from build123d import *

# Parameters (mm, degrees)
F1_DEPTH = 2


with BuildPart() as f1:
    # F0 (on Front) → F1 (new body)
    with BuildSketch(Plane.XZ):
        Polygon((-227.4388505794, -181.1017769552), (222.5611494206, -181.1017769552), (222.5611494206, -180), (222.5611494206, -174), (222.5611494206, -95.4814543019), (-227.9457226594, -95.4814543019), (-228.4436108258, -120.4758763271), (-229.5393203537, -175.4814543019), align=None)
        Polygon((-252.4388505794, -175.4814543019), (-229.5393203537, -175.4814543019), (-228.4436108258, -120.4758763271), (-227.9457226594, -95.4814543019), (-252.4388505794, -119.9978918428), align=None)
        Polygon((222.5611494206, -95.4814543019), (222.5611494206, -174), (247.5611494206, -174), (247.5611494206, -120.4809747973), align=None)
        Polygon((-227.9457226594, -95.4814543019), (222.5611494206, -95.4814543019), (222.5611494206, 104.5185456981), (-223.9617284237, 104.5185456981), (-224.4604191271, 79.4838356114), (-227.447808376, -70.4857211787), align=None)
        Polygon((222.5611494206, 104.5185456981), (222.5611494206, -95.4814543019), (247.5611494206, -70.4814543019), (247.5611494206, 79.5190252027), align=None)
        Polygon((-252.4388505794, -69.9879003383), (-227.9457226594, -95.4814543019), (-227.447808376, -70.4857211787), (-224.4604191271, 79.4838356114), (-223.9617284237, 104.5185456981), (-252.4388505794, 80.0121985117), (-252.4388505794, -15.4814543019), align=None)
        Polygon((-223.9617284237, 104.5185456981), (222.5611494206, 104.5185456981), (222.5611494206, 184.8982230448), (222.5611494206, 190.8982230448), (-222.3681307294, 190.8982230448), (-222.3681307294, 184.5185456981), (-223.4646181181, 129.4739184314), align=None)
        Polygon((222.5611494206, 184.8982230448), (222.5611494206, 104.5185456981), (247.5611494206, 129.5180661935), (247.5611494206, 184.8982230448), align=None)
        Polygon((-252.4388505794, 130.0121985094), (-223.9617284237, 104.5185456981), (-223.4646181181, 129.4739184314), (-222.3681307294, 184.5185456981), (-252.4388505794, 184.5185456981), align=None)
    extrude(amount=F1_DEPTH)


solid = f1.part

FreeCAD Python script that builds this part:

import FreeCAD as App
import Part
import Sketcher
Q = App.Units.Quantity

doc = App.newDocument("Part")
body = doc.addObject("PartDesign::Body", "Body")

sketch1 = body.newObject("Sketcher::SketchObject", "Sketch")
sketch1.AttachmentSupport = (doc.getObject("XZ_Plane"), [""])
sketch1.MapMode = "FlatFace"
sketch1.addGeometry(Part.LineSegment(App.Vector(-227, -181, 0), App.Vector(223, -181, 0)), False)
sketch1.addGeometry(Part.LineSegment(App.Vector(223, -181, 0), App.Vector(223, -174, 0)), False)
sketch1.addGeometry(Part.LineSegment(App.Vector(223, -174, 0), App.Vector(248, -174, 0)), False)
sketch1.addGeometry(Part.LineSegment(App.Vector(248, -174, 0), App.Vector(248, -120, 0)), False)
sketch1.addGeometry(Part.LineSegment(App.Vector(248, -120, 0), App.Vector(223, -95, 0)), False)
sketch1.addGeometry(Part.LineSegment(App.Vector(223, -95, 0), App.Vector(248, -70, 0)), False)
sketch1.addGeometry(Part.LineSegment(App.Vector(248, -70, 0), App.Vector(248, 80, 0)), False)
sketch1.addGeometry(Part.LineSegment(App.Vector(248, 80, 0), App.Vector(223, 105, 0)), False)
sketch1.addGeometry(Part.LineSegment(App.Vector(223, 105, 0), App.Vector(248, 130, 0)), False)
sketch1.addGeometry(Part.LineSegment(App.Vector(248, 130, 0), App.Vector(248, 185, 0)), False)
sketch1.addGeometry(Part.LineSegment(App.Vector(248, 185, 0), App.Vector(223, 185, 0)), False)
sketch1.addGeometry(Part.LineSegment(App.Vector(223, 185, 0), App.Vector(223, 191, 0)), False)
sketch1.addGeometry(Part.LineSegment(App.Vector(223, 191, 0), App.Vector(-222, 191, 0)), False)
sketch1.addGeometry(Part.LineSegment(App.Vector(-222, 191, 0), App.Vector(-222, 185, 0)), False)
sketch1.addGeometry(Part.LineSegment(App.Vector(-222, 185, 0), App.Vector(-252, 185, 0)), False)
sketch1.addGeometry(Part.LineSegment(App.Vector(-252, 185, 0), App.Vector(-252, 130, 0)), False)
sketch1.addGeometry(Part.LineSegment(App.Vector(-252, 130, 0), App.Vector(-224, 105, 0)), False)
sketch1.addGeometry(Part.LineSegment(App.Vector(-224, 105, 0), App.Vector(-252, 80, 0)), False)
sketch1.addGeometry(Part.LineSegment(App.Vector(-252, 80, 0), App.Vector(-252, -70, 0)), False)
sketch1.addGeometry(Part.LineSegment(App.Vector(-252, -70, 0), App.Vector(-228, -95, 0)), False)
sketch1.addGeometry(Part.LineSegment(App.Vector(-228, -95, 0), App.Vector(-252, -120, 0)), False)
sketch1.addGeometry(Part.LineSegment(App.Vector(-252, -120, 0), App.Vector(-252, -175, 0)), False)
sketch1.addGeometry(Part.LineSegment(App.Vector(-252, -175, 0), App.Vector(-230, -175, 0)), False)
sketch1.addGeometry(Part.LineSegment(App.Vector(-230, -175, 0), App.Vector(-227, -181, 0)), False)
sketch1.addConstraint(Sketcher.Constraint("Coincident", 0, 2, 1, 1))
sketch1.addConstraint(Sketcher.Constraint("Coincident", 1, 2, 2, 1))
sketch1.addConstraint(Sketcher.Constraint("Coincident", 2, 2, 3, 1))
sketch1.addConstraint(Sketcher.Constraint("Coincident", 3, 2, 4, 1))
sketch1.addConstraint(Sketcher.Constraint("Coincident", 4, 2, 5, 1))
sketch1.addConstraint(Sketcher.Constraint("Coincident", 5, 2, 6, 1))
sketch1.addConstraint(Sketcher.Constraint("Coincident", 6, 2, 7, 1))
sketch1.addConstraint(Sketcher.Constraint("Coincident", 7, 2, 8, 1))
sketch1.addConstraint(Sketcher.Constraint("Coincident", 8, 2, 9, 1))
sketch1.addConstraint(Sketcher.Constraint("Coincident", 9, 2, 10, 1))
sketch1.addConstraint(Sketcher.Constraint("Coincident", 10, 2, 11, 1))
sketch1.addConstraint(Sketcher.Constraint("Coincident", 11, 2, 12, 1))
sketch1.addConstraint(Sketcher.Constraint("Coincident", 12, 2, 13, 1))
sketch1.addConstraint(Sketcher.Constraint("Coincident", 13, 2, 14, 1))
sketch1.addConstraint(Sketcher.Constraint("Coincident", 14, 2, 15, 1))
sketch1.addConstraint(Sketcher.Constraint("Coincident", 15, 2, 16, 1))
sketch1.addConstraint(Sketcher.Constraint("Coincident", 16, 2, 17, 1))
sketch1.addConstraint(Sketcher.Constraint("Coincident", 17, 2, 18, 1))
sketch1.addConstraint(Sketcher.Constraint("Coincident", 18, 2, 19, 1))
sketch1.addConstraint(Sketcher.Constraint("Coincident", 19, 2, 20, 1))
sketch1.addConstraint(Sketcher.Constraint("Coincident", 20, 2, 21, 1))
sketch1.addConstraint(Sketcher.Constraint("Coincident", 21, 2, 22, 1))
sketch1.addConstraint(Sketcher.Constraint("Coincident", 22, 2, 23, 1))
sketch1.addConstraint(Sketcher.Constraint("Coincident", 23, 2, 0, 1))
sketch1.addConstraint(Sketcher.Constraint("Horizontal", 0))
sketch1.addConstraint(Sketcher.Constraint("Vertical", 1))
sketch1.addConstraint(Sketcher.Constraint("Horizontal", 2))
sketch1.addConstraint(Sketcher.Constraint("Vertical", 3))
sketch1.addConstraint(Sketcher.Constraint("Vertical", 6))
sketch1.addConstraint(Sketcher.Constraint("Vertical", 9))
sketch1.addConstraint(Sketcher.Constraint("Horizontal", 10))
sketch1.addConstraint(Sketcher.Constraint("Vertical", 11))
sketch1.addConstraint(Sketcher.Constraint("Horizontal", 12))
sketch1.addConstraint(Sketcher.Constraint("Vertical", 13))
sketch1.addConstraint(Sketcher.Constraint("Horizontal", 14))
sketch1.addConstraint(Sketcher.Constraint("Vertical", 15))
sketch1.addConstraint(Sketcher.Constraint("Vertical", 18))
sketch1.addConstraint(Sketcher.Constraint("Vertical", 21))
sketch1.addConstraint(Sketcher.Constraint("Horizontal", 22))
sketch1.addConstraint(Sketcher.Constraint("Parallel", 4, 7))
sketch1.addConstraint(Sketcher.Constraint("Horizontal", 7, 2, 16, 2))
sketch1.addConstraint(Sketcher.Constraint("Horizontal", 4, 2, 19, 2))
sketch1.addConstraint(Sketcher.Constraint("Vertical", 1, 2, 4, 2))
sketch1.addConstraint(Sketcher.Constraint("Vertical", 3, 2, 5, 2))
sketch1.addConstraint(Sketcher.Constraint("Vertical", 4, 2, 7, 2))
sketch1.addConstraint(Sketcher.Constraint("Vertical", 6, 2, 8, 2))
sketch1.addConstraint(Sketcher.Constraint("Vertical", 7, 2, 10, 2))
sketch1.addConstraint(Sketcher.Constraint("Vertical", 15, 2, 17, 2))
sketch1.addConstraint(Sketcher.Constraint("Vertical", 18, 2, 20, 2))
sketch1.addConstraint(Sketcher.Constraint("Equal", 7, 8))
sketch1.addConstraint(Sketcher.Constraint("DistanceX", 0, 1, 0, 2, 450.0))
sketch1.addConstraint(Sketcher.Constraint("DistanceX", 2, 1, 2, 2, 25.0))
sketch1.addConstraint(Sketcher.Constraint("DistanceY", 11, 1, 11, 2, 6.0))
sketch1.addConstraint(Sketcher.Constraint("Angle", 5, Q("45 deg")))
sketch1.addConstraint(Sketcher.Constraint("Distance", 23, 6.0))
sketch1.addConstraint(Sketcher.Constraint("DistanceY", 1, 2, -1, 1, 174.0))
sketch1.addConstraint(Sketcher.Constraint("DistanceY", 3, 2, 6, 2, 200.0))
sketch1.addConstraint(Sketcher.Constraint("DistanceY", 7, 2, 13, 2, 80.0))
sketch1.addConstraint(Sketcher.Constraint("DistanceX", 14, 2, 10, 2, 475.0))
sketch1.addConstraint(Sketcher.Constraint("DistanceY", 17, 2, 15, 2, 50.0))
sketch1.addConstraint(Sketcher.Constraint("DistanceY", 21, 2, 19, 2, 80.0))
sketch1.addConstraint(Sketcher.Constraint("Distance", 4, 35.355))
sketch1.addConstraint(Sketcher.Constraint("Distance", 19, 35.353))
sketch1.addConstraint(Sketcher.Constraint("Distance", 20, 34.655))
sketch1.addConstraint(Sketcher.Constraint("DistanceY", 18, 2, 18, 1, 150.000099))
sketch1.addConstraint(Sketcher.Constraint("DistanceX", 12, 2, 12, 1, 444.92928))
sketch1.addConstraint(Sketcher.Constraint("DistanceX", 22, 1, 22, 2, 22.89953))
sketch1.addConstraint(Sketcher.Constraint("DistanceY", -1, 1, 15, 2, 130.012199))
sketch1.addConstraint(Sketcher.Constraint("DistanceY", 1, 1, 1, 2, 7.101777))
sketch1.addConstraint(Sketcher.Constraint("DistanceY", 9, 1, 9, 2, 55.380157))
sketch1.addConstraint(Sketcher.Constraint("DistanceX", -1, 1, 0, 2, 222.561149))
sketch1.addConstraint(Sketcher.Constraint("DistanceX", 16, 2, -1, 1, 223.961728))
pad1 = body.newObject("PartDesign::Pad", "Pad")
pad1.Profile = sketch1
pad1.Length = 2

doc.recompute()
